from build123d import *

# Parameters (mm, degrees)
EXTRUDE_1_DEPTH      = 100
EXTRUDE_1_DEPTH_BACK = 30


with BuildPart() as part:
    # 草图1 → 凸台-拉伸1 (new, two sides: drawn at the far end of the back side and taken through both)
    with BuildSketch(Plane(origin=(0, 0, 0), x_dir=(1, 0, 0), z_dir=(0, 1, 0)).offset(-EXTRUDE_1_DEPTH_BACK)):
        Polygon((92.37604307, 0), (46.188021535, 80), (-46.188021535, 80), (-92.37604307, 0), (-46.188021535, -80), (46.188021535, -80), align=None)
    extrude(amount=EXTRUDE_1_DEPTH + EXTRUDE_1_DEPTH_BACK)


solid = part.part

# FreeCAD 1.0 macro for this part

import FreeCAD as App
import Part
import Sketcher
Q = App.Units.Quantity


def add_polygon(sketch, points):
    """Adds a closed chain of lines whose ends are joined by coincident constraints."""
    first, n = sketch.GeometryCount, len(points)
    for a, b in zip(points, points[1:] + points[:1]):
        sketch.addGeometry(Part.LineSegment(App.Vector(*a, 0), App.Vector(*b, 0)), False)
    for i in range(n):
        sketch.addConstraint(Sketcher.Constraint("Coincident", first + i, 2, first + (i + 1) % n, 1))

doc = App.newDocument("Part")
body = doc.addObject("PartDesign::Body", "Body")

# Sketch on XZ plane
sketch1 = body.newObject("Sketcher::SketchObject", "Sketch")
sketch1.AttachmentSupport = (doc.getObject("XZ_Plane"), [""])
sketch1.MapMode = "FlatFace"
add_polygon(sketch1, [(92, 0), (46, -80), (-46, -80), (-92, 0), (-46, 80), (46, 80)])  # lines 0-5
sketch1.addConstraint([
    Sketcher.Constraint("Horizontal", 1),
    Sketcher.Constraint("Horizontal", 4),
    Sketcher.Constraint("Symmetric", 0, 2, 3, 2, -1, 1),
    Sketcher.Constraint("Symmetric", 2, 2, 5, 2, -1, 1),
    Sketcher.Constraint("PointOnObject", 2, 2, -1),
    Sketcher.Constraint("Parallel", 2, 5),
    Sketcher.Constraint("Vertical", 1, 2, 3, 2),
    Sketcher.Constraint("Angle", 0, Q("-120 deg")),
    Sketcher.Constraint("DistanceY", 0, 2, -1, 1, Q("80 mm")),
    Sketcher.Constraint("DistanceX", 1, 2, 1, 1, Q("92.376043 mm")),
])
pad1 = body.newObject("PartDesign::Pad", "Pad")
pad1.Profile = sketch1
pad1.Type = "TwoLengths"
pad1.Length = 100
pad1.Length2 = 30
pad1.Reversed = True

doc.recompute()
